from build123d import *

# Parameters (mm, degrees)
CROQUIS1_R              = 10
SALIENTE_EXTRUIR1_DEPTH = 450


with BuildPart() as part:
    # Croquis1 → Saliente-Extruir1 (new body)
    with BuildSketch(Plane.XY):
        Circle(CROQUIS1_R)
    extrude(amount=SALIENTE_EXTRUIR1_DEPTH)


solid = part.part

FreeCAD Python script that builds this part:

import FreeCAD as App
import Part
import Sketcher
from FreeCAD import Vector

doc = App.newDocument("Part")
body = doc.addObject("PartDesign::Body", "Body")

# Sketch on XY plane
sketch1 = body.newObject("Sketcher::SketchObject", "Sketch")
sketch1.AttachmentSupport = (doc.getObject("XY_Plane"), [""])
sketch1.MapMode = "FlatFace"
sketch1.addGeometry(Part.Circle(Vector(0, 0, 0), Vector(0, 0, 1), 10), False)
sketch1.addConstraint([
    Sketcher.Constraint("Coincident", 0, 3, -1, 1),
    Sketcher.Constraint("Diameter", 0, 20.0),
])
pad1 = body.newObject("PartDesign::Pad", "Pad")
pad1.Profile = sketch1
pad1.Length = 450

doc.recompute()
